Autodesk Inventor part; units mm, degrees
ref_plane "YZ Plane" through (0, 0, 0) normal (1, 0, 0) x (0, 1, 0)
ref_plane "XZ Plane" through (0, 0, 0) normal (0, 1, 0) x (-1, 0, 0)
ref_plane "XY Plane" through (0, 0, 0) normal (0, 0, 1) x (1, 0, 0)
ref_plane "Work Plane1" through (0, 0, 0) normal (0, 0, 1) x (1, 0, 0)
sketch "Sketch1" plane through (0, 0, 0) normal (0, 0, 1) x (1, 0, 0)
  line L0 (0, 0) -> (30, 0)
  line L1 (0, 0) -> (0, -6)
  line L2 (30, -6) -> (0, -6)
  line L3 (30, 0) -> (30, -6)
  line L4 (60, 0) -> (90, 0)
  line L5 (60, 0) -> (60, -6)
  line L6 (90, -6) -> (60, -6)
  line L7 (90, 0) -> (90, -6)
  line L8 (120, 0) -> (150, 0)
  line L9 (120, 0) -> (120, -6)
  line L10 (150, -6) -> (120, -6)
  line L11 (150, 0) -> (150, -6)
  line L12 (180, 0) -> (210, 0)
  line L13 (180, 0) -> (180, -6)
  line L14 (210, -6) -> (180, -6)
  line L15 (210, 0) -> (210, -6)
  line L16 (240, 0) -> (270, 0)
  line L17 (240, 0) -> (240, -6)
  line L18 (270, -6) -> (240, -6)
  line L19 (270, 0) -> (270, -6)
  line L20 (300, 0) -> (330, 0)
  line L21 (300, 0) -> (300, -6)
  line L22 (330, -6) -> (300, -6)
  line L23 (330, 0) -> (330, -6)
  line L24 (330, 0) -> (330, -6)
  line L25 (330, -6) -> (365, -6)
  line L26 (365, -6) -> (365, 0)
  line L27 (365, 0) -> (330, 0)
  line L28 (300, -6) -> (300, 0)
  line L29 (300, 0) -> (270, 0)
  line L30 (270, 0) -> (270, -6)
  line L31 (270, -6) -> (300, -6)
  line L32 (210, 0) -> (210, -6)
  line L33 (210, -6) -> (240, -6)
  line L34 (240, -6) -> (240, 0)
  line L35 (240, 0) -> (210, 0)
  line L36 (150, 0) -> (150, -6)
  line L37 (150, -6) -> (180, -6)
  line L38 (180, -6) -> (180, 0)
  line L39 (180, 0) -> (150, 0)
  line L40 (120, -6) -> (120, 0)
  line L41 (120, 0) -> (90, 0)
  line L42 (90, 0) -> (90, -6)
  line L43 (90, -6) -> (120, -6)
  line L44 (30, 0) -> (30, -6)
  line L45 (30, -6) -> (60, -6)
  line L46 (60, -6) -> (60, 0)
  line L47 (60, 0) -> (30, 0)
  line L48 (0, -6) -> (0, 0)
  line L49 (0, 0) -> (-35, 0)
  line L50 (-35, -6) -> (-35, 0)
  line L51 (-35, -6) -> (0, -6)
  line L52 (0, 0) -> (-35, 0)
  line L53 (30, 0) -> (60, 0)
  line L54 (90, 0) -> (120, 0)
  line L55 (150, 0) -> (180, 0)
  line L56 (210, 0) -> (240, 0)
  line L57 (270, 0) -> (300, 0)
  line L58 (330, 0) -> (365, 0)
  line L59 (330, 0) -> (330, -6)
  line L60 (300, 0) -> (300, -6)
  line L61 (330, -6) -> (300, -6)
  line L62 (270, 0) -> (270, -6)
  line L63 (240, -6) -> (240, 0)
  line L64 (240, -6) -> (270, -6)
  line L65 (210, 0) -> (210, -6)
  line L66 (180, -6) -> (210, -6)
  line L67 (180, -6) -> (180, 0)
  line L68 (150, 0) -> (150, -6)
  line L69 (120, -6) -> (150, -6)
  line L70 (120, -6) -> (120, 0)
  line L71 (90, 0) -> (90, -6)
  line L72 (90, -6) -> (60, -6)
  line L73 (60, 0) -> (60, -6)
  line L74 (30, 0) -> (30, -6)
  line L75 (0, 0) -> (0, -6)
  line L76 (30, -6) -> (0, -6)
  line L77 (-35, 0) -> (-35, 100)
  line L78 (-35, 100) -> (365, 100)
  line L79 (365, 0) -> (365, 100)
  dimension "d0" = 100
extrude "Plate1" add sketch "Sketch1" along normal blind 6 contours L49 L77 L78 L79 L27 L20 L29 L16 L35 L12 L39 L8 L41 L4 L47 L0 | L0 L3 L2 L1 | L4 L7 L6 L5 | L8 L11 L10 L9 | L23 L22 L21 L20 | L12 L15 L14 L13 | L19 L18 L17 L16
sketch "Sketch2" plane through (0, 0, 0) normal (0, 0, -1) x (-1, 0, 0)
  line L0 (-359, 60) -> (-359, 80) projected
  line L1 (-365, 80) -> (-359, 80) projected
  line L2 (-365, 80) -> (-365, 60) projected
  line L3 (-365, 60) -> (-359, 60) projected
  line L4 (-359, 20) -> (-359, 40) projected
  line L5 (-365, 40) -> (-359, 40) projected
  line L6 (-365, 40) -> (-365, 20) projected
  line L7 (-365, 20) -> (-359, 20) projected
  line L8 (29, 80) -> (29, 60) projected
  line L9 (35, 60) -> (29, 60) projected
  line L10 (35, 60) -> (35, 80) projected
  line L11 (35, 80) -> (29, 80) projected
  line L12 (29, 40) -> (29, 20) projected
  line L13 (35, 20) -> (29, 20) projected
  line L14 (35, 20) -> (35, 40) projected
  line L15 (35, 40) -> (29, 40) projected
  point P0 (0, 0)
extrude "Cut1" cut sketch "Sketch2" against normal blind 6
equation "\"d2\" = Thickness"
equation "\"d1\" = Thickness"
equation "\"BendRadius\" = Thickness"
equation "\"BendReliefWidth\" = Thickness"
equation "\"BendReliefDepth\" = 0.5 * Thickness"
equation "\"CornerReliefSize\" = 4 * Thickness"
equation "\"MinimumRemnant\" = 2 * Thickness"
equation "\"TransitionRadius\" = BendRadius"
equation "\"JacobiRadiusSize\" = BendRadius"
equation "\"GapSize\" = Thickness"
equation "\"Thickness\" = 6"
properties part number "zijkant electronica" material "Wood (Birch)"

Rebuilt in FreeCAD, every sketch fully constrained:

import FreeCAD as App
import Part
import Sketcher

V = App.Vector
Q = App.Units.Quantity

doc = App.newDocument("Part")
body = doc.addObject("PartDesign::Body", "Body")

# Sketch on XY plane
sketch1 = body.newObject("Sketcher::SketchObject", "Sketch")
sketch1.AttachmentSupport = (doc.getObject("XY_Plane"), [""])
sketch1.MapMode = "FlatFace"
sketch1.addGeometry([
    Part.LineSegment(V(-35, 0, 0), V(0, 0, 0)),  # 0
    Part.LineSegment(V(0, 0, 0), V(0, -6, 0)),  # 1
    Part.LineSegment(V(0, -6, 0), V(30, -6, 0)),  # 2
    Part.LineSegment(V(30, -6, 0), V(30, 0, 0)),  # 3
    Part.LineSegment(V(30, 0, 0), V(60, 0, 0)),  # 4
    Part.LineSegment(V(60, 0, 0), V(60, -6, 0)),  # 5
    Part.LineSegment(V(60, -6, 0), V(90, -6, 0)),  # 6
    Part.LineSegment(V(90, -6, 0), V(90, 0, 0)),  # 7
    Part.LineSegment(V(90, 0, 0), V(120, 0, 0)),  # 8
    Part.LineSegment(V(120, 0, 0), V(120, -6, 0)),  # 9
    Part.LineSegment(V(120, -6, 0), V(150, -6, 0)),  # 10
    Part.LineSegment(V(150, -6, 0), V(150, 0, 0)),  # 11
    Part.LineSegment(V(150, 0, 0), V(180, 0, 0)),  # 12
    Part.LineSegment(V(180, 0, 0), V(180, -6, 0)),  # 13
    Part.LineSegment(V(180, -6, 0), V(210, -6, 0)),  # 14
    Part.LineSegment(V(210, -6, 0), V(210, 0, 0)),  # 15
    Part.LineSegment(V(210, 0, 0), V(240, 0, 0)),  # 16
    Part.LineSegment(V(240, 0, 0), V(240, -6, 0)),  # 17
    Part.LineSegment(V(240, -6, 0), V(270, -6, 0)),  # 18
    Part.LineSegment(V(270, -6, 0), V(270, 0, 0)),  # 19
    Part.LineSegment(V(270, 0, 0), V(300, 0, 0)),  # 20
    Part.LineSegment(V(300, 0, 0), V(300, -6, 0)),  # 21
    Part.LineSegment(V(300, -6, 0), V(330, -6, 0)),  # 22
    Part.LineSegment(V(330, -6, 0), V(330, 0, 0)),  # 23
    Part.LineSegment(V(330, 0, 0), V(365, 0, 0)),  # 24
    Part.LineSegment(V(365, 0, 0), V(365, 100, 0)),  # 25
    Part.LineSegment(V(365, 100, 0), V(-35, 100, 0)),  # 26
    Part.LineSegment(V(-35, 100, 0), V(-35, 0, 0)),  # 27
], False)
sketch1.addConstraint([
    Sketcher.Constraint("Coincident", 0, 2, 1, 1),
    Sketcher.Constraint("Coincident", 1, 2, 2, 1),
    Sketcher.Constraint("Coincident", 2, 2, 3, 1),
    Sketcher.Constraint("Coincident", 3, 2, 4, 1),
    Sketcher.Constraint("Coincident", 4, 2, 5, 1),
    Sketcher.Constraint("Coincident", 5, 2, 6, 1),
    Sketcher.Constraint("Coincident", 6, 2, 7, 1),
    Sketcher.Constraint("Coincident", 7, 2, 8, 1),
    Sketcher.Constraint("Coincident", 8, 2, 9, 1),
    Sketcher.Constraint("Coincident", 9, 2, 10, 1),
    Sketcher.Constraint("Coincident", 10, 2, 11, 1),
    Sketcher.Constraint("Coincident", 11, 2, 12, 1),
    Sketcher.Constraint("Coincident", 12, 2, 13, 1),
    Sketcher.Constraint("Coincident", 13, 2, 14, 1),
    Sketcher.Constraint("Coincident", 14, 2, 15, 1),
    Sketcher.Constraint("Coincident", 15, 2, 16, 1),
    Sketcher.Constraint("Coincident", 16, 2, 17, 1),
    Sketcher.Constraint("Coincident", 17, 2, 18, 1),
    Sketcher.Constraint("Coincident", 18, 2, 19, 1),
    Sketcher.Constraint("Coincident", 19, 2, 20, 1),
    Sketcher.Constraint("Coincident", 20, 2, 21, 1),
    Sketcher.Constraint("Coincident", 21, 2, 22, 1),
    Sketcher.Constraint("Coincident", 22, 2, 23, 1),
    Sketcher.Constraint("Coincident", 23, 2, 24, 1),
    Sketcher.Constraint("Coincident", 24, 2, 25, 1),
    Sketcher.Constraint("Coincident", 25, 2, 26, 1),
    Sketcher.Constraint("Coincident", 26, 2, 27, 1),
    Sketcher.Constraint("Coincident", 27, 2, 0, 1),
    Sketcher.Constraint("Horizontal", 0),
    Sketcher.Constraint("Vertical", 1),
    Sketcher.Constraint("Horizontal", 2),
    Sketcher.Constraint("Vertical", 3),
    Sketcher.Constraint("Horizontal", 4),
    Sketcher.Constraint("Vertical", 5),
    Sketcher.Constraint("Horizontal", 6),
    Sketcher.Constraint("Vertical", 7),
    Sketcher.Constraint("Horizontal", 8),
    Sketcher.Constraint("Vertical", 9),
    Sketcher.Constraint("Horizontal", 10),
    Sketcher.Constraint("Vertical", 11),
    Sketcher.Constraint("Horizontal", 12),
    Sketcher.Constraint("Vertical", 13),
    Sketcher.Constraint("Horizontal", 14),
    Sketcher.Constraint("Vertical", 15),
    Sketcher.Constraint("Horizontal", 16),
    Sketcher.Constraint("Vertical", 17),
    Sketcher.Constraint("Horizontal", 18),
    Sketcher.Constraint("Vertical", 19),
    Sketcher.Constraint("Horizontal", 20),
    Sketcher.Constraint("Vertical", 21),
    Sketcher.Constraint("Horizontal", 22),
    Sketcher.Constraint("Vertical", 23),
    Sketcher.Constraint("Horizontal", 24),
    Sketcher.Constraint("Vertical", 25),
    Sketcher.Constraint("Horizontal", 26),
    Sketcher.Constraint("Vertical", 27),
    Sketcher.Constraint("Coincident", 0, 2, -1, 1),
    Sketcher.Constraint("PointOnObject", 3, 2, -1),
    Sketcher.Constraint("PointOnObject", 7, 2, -1),
    Sketcher.Constraint("PointOnObject", 11, 2, -1),
    Sketcher.Constraint("PointOnObject", 15, 2, -1),
    Sketcher.Constraint("PointOnObject", 19, 2, -1),
    Sketcher.Constraint("PointOnObject", 23, 2, -1),
    Sketcher.Constraint("Horizontal", 2, 2, 5, 2),
    Sketcher.Constraint("Horizontal", 6, 2, 9, 2),
    Sketcher.Constraint("Horizontal", 10, 2, 13, 2),
    Sketcher.Constraint("Horizontal", 14, 2, 17, 2),
    Sketcher.Constraint("Horizontal", 18, 2, 21, 2),
    Sketcher.Constraint("Equal", 2, 4),
    Sketcher.Constraint("Equal", 4, 6),
    Sketcher.Constraint("Equal", 6, 8),
    Sketcher.Constraint("Equal", 8, 10),
    Sketcher.Constraint("Equal", 10, 12),
    Sketcher.Constraint("Equal", 12, 14),
    Sketcher.Constraint("Equal", 14, 16),
    Sketcher.Constraint("Equal", 16, 18),
    Sketcher.Constraint("Equal", 18, 20),
    Sketcher.Constraint("Equal", 20, 22),
    Sketcher.Constraint("Equal", 0, 24),
    Sketcher.Constraint("DistanceY", 25, 1, 25, 2, Q("100 mm")),
    Sketcher.Constraint("DistanceX", 0, 1, 0, 2, Q("35 mm")),
    Sketcher.Constraint("DistanceX", 2, 1, 2, 2, Q("30 mm")),
    Sketcher.Constraint("DistanceY", 1, 2, 1, 1, Q("6 mm")),
])
pad1 = body.newObject("PartDesign::Pad", "Pad")
pad1.Profile = sketch1
pad1.Length = 6

# Sketch on XY plane
sketch2 = body.newObject("Sketcher::SketchObject", "Sketch001")
sketch2.AttachmentSupport = (doc.getObject("XY_Plane"), [""])
sketch2.MapMode = "FlatFace"
sketch2.addGeometry([
    Part.LineSegment(V(365, 60, 0), V(359, 60, 0)),  # 0
    Part.LineSegment(V(359, 60, 0), V(359, 80, 0)),  # 1
    Part.LineSegment(V(359, 80, 0), V(365, 80, 0)),  # 2
    Part.LineSegment(V(365, 80, 0), V(365, 60, 0)),  # 3
    Part.LineSegment(V(365, 20, 0), V(359, 20, 0)),  # 4
    Part.LineSegment(V(359, 20, 0), V(359, 40, 0)),  # 5
    Part.LineSegment(V(359, 40, 0), V(365, 40, 0)),  # 6
    Part.LineSegment(V(365, 40, 0), V(365, 20, 0)),  # 7
    Part.LineSegment(V(-35, 80, 0), V(-29, 80, 0)),  # 8
    Part.LineSegment(V(-29, 80, 0), V(-29, 60, 0)),  # 9
    Part.LineSegment(V(-29, 60, 0), V(-35, 60, 0)),  # 10
    Part.LineSegment(V(-35, 60, 0), V(-35, 80, 0)),  # 11
    Part.LineSegment(V(-35, 40, 0), V(-29, 40, 0)),  # 12
    Part.LineSegment(V(-29, 40, 0), V(-29, 20, 0)),  # 13
    Part.LineSegment(V(-29, 20, 0), V(-35, 20, 0)),  # 14
    Part.LineSegment(V(-35, 20, 0), V(-35, 40, 0)),  # 15
], False)
sketch2.addConstraint([
    Sketcher.Constraint("Coincident", 0, 2, 1, 1),
    Sketcher.Constraint("Coincident", 1, 2, 2, 1),
    Sketcher.Constraint("Coincident", 2, 2, 3, 1),
    Sketcher.Constraint("Coincident", 3, 2, 0, 1),
    Sketcher.Constraint("Coincident", 4, 2, 5, 1),
    Sketcher.Constraint("Coincident", 5, 2, 6, 1),
    Sketcher.Constraint("Coincident", 6, 2, 7, 1),
    Sketcher.Constraint("Coincident", 7, 2, 4, 1),
    Sketcher.Constraint("Coincident", 8, 2, 9, 1),
    Sketcher.Constraint("Coincident", 9, 2, 10, 1),
    Sketcher.Constraint("Coincident", 10, 2, 11, 1),
    Sketcher.Constraint("Coincident", 11, 2, 8, 1),
    Sketcher.Constraint("Coincident", 12, 2, 13, 1),
    Sketcher.Constraint("Coincident", 13, 2, 14, 1),
    Sketcher.Constraint("Coincident", 14, 2, 15, 1),
    Sketcher.Constraint("Coincident", 15, 2, 12, 1),
    Sketcher.Constraint("Horizontal", 0),
    Sketcher.Constraint("Vertical", 1),
    Sketcher.Constraint("Horizontal", 2),
    Sketcher.Constraint("Vertical", 3),
    Sketcher.Constraint("Horizontal", 4),
    Sketcher.Constraint("Vertical", 5),
    Sketcher.Constraint("Horizontal", 6),
    Sketcher.Constraint("Vertical", 7),
    Sketcher.Constraint("Horizontal", 8),
    Sketcher.Constraint("Vertical", 9),
    Sketcher.Constraint("Horizontal", 10),
    Sketcher.Constraint("Vertical", 11),
    Sketcher.Constraint("Horizontal", 12),
    Sketcher.Constraint("Vertical", 13),
    Sketcher.Constraint("Horizontal", 14),
    Sketcher.Constraint("Vertical", 15),
    Sketcher.Constraint("Horizontal", 2, 2, 8, 2),
    Sketcher.Constraint("Horizontal", 3, 2, 9, 2),
    Sketcher.Constraint("Horizontal", 6, 2, 12, 2),
    Sketcher.Constraint("Horizontal", 7, 2, 13, 2),
    Sketcher.Constraint("Vertical", 1, 2, 4, 2),
    Sketcher.Constraint("Vertical", 3, 2, 6, 2),
    Sketcher.Constraint("Vertical", 9, 2, 12, 2),
    Sketcher.Constraint("Vertical", 11, 2, 14, 2),
    Sketcher.Constraint("Equal", 6, 8),
    Sketcher.Constraint("Equal", 3, 5),
    Sketcher.Constraint("DistanceX", 0, 2, 0, 1, Q("6 mm")),
    Sketcher.Constraint("DistanceY", 1, 1, 1, 2, Q("20 mm")),
    Sketcher.Constraint("DistanceX", -1, 1, 0, 2, Q("359 mm")),
    Sketcher.Constraint("DistanceY", -1, 1, 0, 2, Q("60 mm")),
    Sketcher.Constraint("DistanceY", -1, 1, 4, 2, Q("20 mm")),
    Sketcher.Constraint("DistanceX", 8, 2, -1, 1, Q("29 mm")),
])
pocket1 = body.newObject("PartDesign::Pocket", "Pocket")
pocket1.Profile = sketch2
pocket1.Length = 6
pocket1.Reversed = True

doc.recompute()
